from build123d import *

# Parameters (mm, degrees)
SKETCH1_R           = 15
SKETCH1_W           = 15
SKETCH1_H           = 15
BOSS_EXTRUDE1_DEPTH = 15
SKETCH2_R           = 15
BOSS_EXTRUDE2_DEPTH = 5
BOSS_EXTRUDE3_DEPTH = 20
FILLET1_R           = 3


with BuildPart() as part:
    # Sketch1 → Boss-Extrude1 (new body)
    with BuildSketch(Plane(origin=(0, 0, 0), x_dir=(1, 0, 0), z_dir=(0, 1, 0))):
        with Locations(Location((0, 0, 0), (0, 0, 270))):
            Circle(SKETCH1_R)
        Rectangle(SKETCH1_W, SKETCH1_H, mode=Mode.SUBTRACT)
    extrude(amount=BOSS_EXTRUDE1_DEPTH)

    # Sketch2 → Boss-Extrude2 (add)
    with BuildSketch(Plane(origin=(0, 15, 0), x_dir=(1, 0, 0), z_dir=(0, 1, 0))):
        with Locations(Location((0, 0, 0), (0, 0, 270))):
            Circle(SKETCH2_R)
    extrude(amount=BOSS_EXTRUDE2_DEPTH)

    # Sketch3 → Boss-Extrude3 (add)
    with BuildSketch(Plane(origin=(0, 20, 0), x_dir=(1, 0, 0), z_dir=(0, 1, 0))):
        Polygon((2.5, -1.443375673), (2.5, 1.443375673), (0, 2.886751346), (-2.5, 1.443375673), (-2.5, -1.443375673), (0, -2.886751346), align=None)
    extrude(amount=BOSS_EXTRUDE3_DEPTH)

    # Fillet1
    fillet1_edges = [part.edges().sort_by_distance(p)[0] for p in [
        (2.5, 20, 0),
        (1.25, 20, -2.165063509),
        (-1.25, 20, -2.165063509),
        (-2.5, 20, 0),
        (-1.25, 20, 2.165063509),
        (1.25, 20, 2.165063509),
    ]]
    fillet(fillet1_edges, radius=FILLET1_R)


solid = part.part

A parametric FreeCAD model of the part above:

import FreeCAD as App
import Part
import Sketcher
Q = App.Units.Quantity


def edges_at(feature, points):
    """Names of the edges that pass closest to the given points."""
    edges = feature.Shape.Edges
    near = lambda p: min(range(len(edges)), key=lambda i: edges[i].distToShape(Part.Vertex(*p))[0])
    return sorted({f"Edge{near(p) + 1}" for p in points})


def add_polygon(sketch, points):
    """Adds a closed chain of lines whose ends are joined by coincident constraints."""
    first, n = sketch.GeometryCount, len(points)
    for a, b in zip(points, points[1:] + points[:1]):
        sketch.addGeometry(Part.LineSegment(App.Vector(*a, 0), App.Vector(*b, 0)), False)
    for i in range(n):
        sketch.addConstraint(Sketcher.Constraint("Coincident", first + i, 2, first + (i + 1) % n, 1))

doc = App.newDocument("Part")
body = doc.addObject("PartDesign::Body", "Body")

# Sketch on XZ plane
sketch1 = body.newObject("Sketcher::SketchObject", "Sketch")
sketch1.AttachmentSupport = (doc.getObject("XZ_Plane"), [""])
sketch1.MapMode = "FlatFace"
sketch1.addGeometry(Part.Circle(App.Vector(0, 0, 0), App.Vector(0, 0, 1), 15), False)  # 0
add_polygon(sketch1, [(7.5, 7.5), (-7.5, 7.5), (-7.5, -7.5), (7.5, -7.5)])  # lines 1-4
sketch1.addConstraint([
    Sketcher.Constraint("Horizontal", 1),
    Sketcher.Constraint("Vertical", 2),
    Sketcher.Constraint("Horizontal", 3),
    Sketcher.Constraint("Vertical", 4),
    Sketcher.Constraint("Coincident", 0, 3, -1, 1),
    Sketcher.Constraint("Symmetric", 1, 2, 3, 2, -1, 1),
    Sketcher.Constraint("Equal", 3, 2),
    Sketcher.Constraint("Diameter", 0, Q("30 mm")),
    Sketcher.Constraint("DistanceX", 1, 2, 1, 1, Q("15 mm")),
])
pad1 = body.newObject("PartDesign::Pad", "Pad")
pad1.Profile = sketch1
pad1.Length = 15
pad1.Reversed = True

# Sketch on XZ plane
sketch2 = body.newObject("Sketcher::SketchObject", "Sketch001")
sketch2.AttachmentSupport = (doc.getObject("XZ_Plane"), [""])
sketch2.MapMode = "FlatFace"
sketch2.AttachmentOffset = App.Placement(App.Vector(0, 0, -15), App.Rotation())
sketch2.addGeometry(Part.Circle(App.Vector(0, 0, 0), App.Vector(0, 0, 1), 15), False)
sketch2.addConstraint([
    Sketcher.Constraint("Coincident", 0, 3, -1, 1),
    Sketcher.Constraint("Diameter", 0, Q("30 mm")),
])
pad2 = body.newObject("PartDesign::Pad", "Pad001")
pad2.Profile = sketch2
pad2.Length = 5
pad2.Reversed = True

# Sketch on XZ plane
sketch3 = body.newObject("Sketcher::SketchObject", "Sketch002")
sketch3.AttachmentSupport = (doc.getObject("XZ_Plane"), [""])
sketch3.MapMode = "FlatFace"
sketch3.AttachmentOffset = App.Placement(App.Vector(0, 0, -20), App.Rotation())
add_polygon(sketch3, [(2.5, 1.443376), (2.5, -1.443376), (0, -2.886751), (-2.5, -1.443376), (-2.5, 1.443376), (0, 2.886751)])  # lines 0-5
sketch3.addConstraint([
    Sketcher.Constraint("Vertical", 0),
    Sketcher.Constraint("Vertical", 3),
    Sketcher.Constraint("Symmetric", 0, 2, 3, 2, -1, 1),
    Sketcher.Constraint("Symmetric", 1, 2, 4, 2, -1, 1),
    Sketcher.Constraint("PointOnObject", 1, 2, -2),
    Sketcher.Constraint("Parallel", 2, 5),
    Sketcher.Constraint("Horizontal", 0, 2, 2, 2),
    Sketcher.Constraint("Angle", 1, Q("-150 deg")),
    Sketcher.Constraint("DistanceX", 2, 2, 0, 2, Q("5 mm")),
    Sketcher.Constraint("DistanceY", 0, 2, 0, 1, Q("2.886751 mm")),
])
pad3 = body.newObject("PartDesign::Pad", "Pad002")
pad3.Profile = sketch3
pad3.Length = 20
pad3.Reversed = True
doc.recompute()

fillet = body.newObject("PartDesign::Fillet", "Fillet")
fillet.Base = (pad3, edges_at(pad3, [
    (2.5, 20, 0),
    (1.25, 20, -2.165),
    (-1.25, 20, -2.165),
    (-2.5, 20, 0),
    (-1.25, 20, 2.165),
    (1.25, 20, 2.165),
]))
fillet.Radius = 3

doc.recompute()
